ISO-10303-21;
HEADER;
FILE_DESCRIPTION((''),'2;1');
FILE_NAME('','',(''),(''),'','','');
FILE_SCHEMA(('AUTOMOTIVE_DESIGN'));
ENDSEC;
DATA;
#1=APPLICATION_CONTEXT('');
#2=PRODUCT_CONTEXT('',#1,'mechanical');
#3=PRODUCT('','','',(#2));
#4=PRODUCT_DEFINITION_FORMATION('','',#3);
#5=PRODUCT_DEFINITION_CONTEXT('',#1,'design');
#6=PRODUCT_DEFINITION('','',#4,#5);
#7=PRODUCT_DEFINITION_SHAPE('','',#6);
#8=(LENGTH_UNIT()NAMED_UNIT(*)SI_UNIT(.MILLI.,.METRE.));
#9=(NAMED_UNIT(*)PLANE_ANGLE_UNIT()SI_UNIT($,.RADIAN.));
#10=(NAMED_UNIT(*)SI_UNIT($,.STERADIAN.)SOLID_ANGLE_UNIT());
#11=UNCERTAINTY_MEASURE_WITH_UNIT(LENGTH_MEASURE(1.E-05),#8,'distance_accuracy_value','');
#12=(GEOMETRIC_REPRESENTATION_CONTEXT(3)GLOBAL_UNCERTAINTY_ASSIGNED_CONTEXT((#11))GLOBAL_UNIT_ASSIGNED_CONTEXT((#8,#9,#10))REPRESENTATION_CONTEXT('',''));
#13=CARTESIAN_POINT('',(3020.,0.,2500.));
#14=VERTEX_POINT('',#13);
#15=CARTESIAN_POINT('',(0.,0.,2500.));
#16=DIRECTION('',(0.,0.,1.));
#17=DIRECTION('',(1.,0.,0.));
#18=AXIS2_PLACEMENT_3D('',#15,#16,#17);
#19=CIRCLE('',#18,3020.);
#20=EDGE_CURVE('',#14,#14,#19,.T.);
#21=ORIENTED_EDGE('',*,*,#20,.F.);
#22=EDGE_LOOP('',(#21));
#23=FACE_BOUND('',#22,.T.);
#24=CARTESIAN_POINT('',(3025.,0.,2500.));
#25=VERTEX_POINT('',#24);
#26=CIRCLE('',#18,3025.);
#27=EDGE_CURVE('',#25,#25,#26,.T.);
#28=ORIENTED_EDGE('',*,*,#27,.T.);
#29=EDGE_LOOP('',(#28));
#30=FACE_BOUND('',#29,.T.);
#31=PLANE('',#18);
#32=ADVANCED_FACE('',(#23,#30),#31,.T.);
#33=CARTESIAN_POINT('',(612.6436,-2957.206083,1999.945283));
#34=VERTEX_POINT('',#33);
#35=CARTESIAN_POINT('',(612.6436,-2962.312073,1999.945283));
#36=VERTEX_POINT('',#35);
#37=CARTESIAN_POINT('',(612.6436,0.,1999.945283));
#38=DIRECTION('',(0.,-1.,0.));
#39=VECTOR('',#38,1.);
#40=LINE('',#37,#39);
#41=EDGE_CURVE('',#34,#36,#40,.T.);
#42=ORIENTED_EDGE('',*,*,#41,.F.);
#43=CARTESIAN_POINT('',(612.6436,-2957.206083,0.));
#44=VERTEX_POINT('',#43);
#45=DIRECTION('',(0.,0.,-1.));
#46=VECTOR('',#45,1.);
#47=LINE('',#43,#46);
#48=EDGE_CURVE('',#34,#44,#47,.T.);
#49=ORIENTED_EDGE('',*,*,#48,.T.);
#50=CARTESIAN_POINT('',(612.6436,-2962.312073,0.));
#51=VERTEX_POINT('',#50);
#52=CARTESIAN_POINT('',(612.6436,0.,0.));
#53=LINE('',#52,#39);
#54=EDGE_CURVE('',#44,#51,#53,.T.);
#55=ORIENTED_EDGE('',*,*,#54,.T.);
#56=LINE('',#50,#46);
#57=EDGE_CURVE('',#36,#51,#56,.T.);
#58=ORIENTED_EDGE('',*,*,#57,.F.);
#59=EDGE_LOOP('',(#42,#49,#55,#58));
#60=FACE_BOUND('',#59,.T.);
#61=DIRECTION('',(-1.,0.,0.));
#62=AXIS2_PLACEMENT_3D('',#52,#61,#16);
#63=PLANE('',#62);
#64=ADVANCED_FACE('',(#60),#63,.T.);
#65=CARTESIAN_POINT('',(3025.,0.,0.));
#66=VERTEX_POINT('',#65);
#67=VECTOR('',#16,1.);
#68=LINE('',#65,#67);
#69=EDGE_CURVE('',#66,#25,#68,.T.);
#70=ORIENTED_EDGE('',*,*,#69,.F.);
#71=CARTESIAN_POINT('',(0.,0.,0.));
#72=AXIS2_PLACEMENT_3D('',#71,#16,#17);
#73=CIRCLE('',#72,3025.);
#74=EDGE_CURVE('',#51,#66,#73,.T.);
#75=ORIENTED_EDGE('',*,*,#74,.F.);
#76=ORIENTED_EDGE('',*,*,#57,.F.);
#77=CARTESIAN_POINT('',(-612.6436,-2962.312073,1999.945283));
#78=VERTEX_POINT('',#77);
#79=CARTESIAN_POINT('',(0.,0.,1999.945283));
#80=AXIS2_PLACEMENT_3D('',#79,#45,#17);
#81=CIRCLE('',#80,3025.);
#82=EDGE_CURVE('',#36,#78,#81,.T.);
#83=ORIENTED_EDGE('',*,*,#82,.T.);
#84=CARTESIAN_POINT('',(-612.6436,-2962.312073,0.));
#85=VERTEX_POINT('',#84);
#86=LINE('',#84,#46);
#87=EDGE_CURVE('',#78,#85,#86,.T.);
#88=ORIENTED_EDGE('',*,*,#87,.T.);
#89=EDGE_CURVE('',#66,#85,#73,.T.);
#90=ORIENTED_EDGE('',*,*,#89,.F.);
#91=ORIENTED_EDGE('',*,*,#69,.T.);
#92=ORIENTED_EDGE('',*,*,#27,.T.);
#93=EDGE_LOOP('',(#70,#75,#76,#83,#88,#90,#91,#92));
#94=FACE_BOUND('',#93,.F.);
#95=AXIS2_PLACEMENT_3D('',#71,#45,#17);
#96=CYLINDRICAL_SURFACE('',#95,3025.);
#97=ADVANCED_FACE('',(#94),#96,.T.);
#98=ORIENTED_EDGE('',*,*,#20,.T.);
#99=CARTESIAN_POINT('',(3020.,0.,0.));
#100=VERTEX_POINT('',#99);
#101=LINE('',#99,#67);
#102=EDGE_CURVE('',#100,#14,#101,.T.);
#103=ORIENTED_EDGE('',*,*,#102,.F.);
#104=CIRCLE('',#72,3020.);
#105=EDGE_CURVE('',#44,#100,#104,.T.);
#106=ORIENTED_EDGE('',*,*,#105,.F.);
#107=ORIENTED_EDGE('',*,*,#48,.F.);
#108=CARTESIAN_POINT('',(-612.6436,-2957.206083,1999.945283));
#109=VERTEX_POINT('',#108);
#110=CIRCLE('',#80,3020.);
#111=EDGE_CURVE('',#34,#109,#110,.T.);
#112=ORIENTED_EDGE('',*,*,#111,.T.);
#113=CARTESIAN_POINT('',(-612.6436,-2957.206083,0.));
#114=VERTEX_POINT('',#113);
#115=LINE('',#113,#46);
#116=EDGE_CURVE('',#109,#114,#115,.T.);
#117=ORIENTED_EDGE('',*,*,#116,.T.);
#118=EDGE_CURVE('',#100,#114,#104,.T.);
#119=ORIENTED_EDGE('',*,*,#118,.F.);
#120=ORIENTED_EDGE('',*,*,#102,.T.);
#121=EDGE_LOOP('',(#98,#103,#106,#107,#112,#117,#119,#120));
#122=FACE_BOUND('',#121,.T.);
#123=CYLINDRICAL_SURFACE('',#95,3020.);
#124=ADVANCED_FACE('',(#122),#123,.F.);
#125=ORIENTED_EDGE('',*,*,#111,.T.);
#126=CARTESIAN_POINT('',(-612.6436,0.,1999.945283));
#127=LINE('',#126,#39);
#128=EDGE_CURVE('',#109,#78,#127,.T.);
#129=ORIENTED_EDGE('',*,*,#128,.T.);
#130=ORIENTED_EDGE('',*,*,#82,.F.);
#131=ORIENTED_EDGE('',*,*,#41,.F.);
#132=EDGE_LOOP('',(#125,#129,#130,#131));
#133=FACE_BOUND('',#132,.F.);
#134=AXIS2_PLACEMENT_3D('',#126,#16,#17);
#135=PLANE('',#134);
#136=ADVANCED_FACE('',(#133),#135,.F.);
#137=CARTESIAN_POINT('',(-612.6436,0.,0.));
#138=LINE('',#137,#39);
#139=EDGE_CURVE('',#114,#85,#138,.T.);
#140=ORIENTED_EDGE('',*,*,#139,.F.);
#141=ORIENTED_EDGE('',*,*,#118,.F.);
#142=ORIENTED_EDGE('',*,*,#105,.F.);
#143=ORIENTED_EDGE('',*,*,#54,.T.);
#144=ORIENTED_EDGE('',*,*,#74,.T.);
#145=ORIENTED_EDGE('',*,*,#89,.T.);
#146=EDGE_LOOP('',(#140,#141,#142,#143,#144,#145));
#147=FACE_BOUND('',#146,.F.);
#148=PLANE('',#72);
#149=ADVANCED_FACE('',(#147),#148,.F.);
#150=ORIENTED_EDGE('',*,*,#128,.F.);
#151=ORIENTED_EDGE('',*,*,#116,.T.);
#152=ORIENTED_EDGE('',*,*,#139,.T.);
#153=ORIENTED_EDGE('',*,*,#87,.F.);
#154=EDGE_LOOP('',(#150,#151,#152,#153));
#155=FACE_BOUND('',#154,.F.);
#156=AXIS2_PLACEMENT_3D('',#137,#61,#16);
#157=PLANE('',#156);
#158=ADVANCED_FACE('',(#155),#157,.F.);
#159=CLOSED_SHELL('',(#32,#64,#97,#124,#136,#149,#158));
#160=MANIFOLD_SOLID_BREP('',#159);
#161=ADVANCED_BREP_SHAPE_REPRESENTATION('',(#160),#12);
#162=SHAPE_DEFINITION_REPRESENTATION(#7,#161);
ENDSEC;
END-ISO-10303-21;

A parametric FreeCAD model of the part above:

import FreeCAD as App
import Part
import Sketcher

V = App.Vector
Q = App.Units.Quantity

doc = App.newDocument("Part")
body = doc.addObject("PartDesign::Body", "Body")

sketch1 = doc.addObject("Sketcher::SketchObject", "Sketch")
body.addObject(sketch1)
sketch1.AttachmentSupport = (doc.XY_Plane, [""])
sketch1.MapMode = "FlatFace"
sketch1.addGeometry([
    Part.Circle(V(0, 0, 0), V(0, 0, 1), 3025),
    Part.Circle(V(0, 0, 0), V(0, 0, 1), 3020),
], False)
sketch1.addConstraint([
    Sketcher.Constraint("Coincident", 0, 3, -1, 1),
    Sketcher.Constraint("Coincident", 1, 3, -1, 1),
    Sketcher.Constraint("Diameter", 0, Q("6050 mm")),
    Sketcher.Constraint("Diameter", 1, Q("6040 mm")),
])
pad1 = doc.addObject("PartDesign::Pad", "Pad")
body.addObject(pad1)
pad1.Profile = sketch1
pad1.Length = 2500

sketch2 = doc.addObject("Sketcher::SketchObject", "Sketch001")
body.addObject(sketch2)
sketch2.AttachmentSupport = (doc.XZ_Plane, [""])
sketch2.MapMode = "FlatFace"
sketch2.addGeometry([
    Part.LineSegment(V(-612.6436, 1999.945283, 0), V(-612.6436, 0, 0)),
    Part.LineSegment(V(-612.6436, 0, 0), V(612.6436, 0, 0)),
    Part.LineSegment(V(612.6436, 0, 0), V(612.6436, 1999.945283, 0)),
    Part.LineSegment(V(612.6436, 1999.945283, 0), V(-612.6436, 1999.945283, 0)),
], False)
sketch2.addConstraint([
    Sketcher.Constraint("Coincident", 0, 2, 1, 1),
    Sketcher.Constraint("Coincident", 1, 2, 2, 1),
    Sketcher.Constraint("Coincident", 2, 2, 3, 1),
    Sketcher.Constraint("Coincident", 3, 2, 0, 1),
    Sketcher.Constraint("Vertical", 0),
    Sketcher.Constraint("Horizontal", 1),
    Sketcher.Constraint("Vertical", 2),
    Sketcher.Constraint("Horizontal", 3),
    Sketcher.Constraint("Symmetric", 0, 2, 1, 2, -1, 1),
    Sketcher.Constraint("DistanceX", 1, 1, 1, 2, Q("1225.287199 mm")),
    Sketcher.Constraint("DistanceY", 0, 2, 0, 1, Q("1999.945283 mm")),
])
pocket1 = doc.addObject("PartDesign::Pocket", "Pocket")
body.addObject(pocket1)
pocket1.Profile = sketch2
pocket1.Length = 3026
pocket1.Reversed = True

doc.recompute()
